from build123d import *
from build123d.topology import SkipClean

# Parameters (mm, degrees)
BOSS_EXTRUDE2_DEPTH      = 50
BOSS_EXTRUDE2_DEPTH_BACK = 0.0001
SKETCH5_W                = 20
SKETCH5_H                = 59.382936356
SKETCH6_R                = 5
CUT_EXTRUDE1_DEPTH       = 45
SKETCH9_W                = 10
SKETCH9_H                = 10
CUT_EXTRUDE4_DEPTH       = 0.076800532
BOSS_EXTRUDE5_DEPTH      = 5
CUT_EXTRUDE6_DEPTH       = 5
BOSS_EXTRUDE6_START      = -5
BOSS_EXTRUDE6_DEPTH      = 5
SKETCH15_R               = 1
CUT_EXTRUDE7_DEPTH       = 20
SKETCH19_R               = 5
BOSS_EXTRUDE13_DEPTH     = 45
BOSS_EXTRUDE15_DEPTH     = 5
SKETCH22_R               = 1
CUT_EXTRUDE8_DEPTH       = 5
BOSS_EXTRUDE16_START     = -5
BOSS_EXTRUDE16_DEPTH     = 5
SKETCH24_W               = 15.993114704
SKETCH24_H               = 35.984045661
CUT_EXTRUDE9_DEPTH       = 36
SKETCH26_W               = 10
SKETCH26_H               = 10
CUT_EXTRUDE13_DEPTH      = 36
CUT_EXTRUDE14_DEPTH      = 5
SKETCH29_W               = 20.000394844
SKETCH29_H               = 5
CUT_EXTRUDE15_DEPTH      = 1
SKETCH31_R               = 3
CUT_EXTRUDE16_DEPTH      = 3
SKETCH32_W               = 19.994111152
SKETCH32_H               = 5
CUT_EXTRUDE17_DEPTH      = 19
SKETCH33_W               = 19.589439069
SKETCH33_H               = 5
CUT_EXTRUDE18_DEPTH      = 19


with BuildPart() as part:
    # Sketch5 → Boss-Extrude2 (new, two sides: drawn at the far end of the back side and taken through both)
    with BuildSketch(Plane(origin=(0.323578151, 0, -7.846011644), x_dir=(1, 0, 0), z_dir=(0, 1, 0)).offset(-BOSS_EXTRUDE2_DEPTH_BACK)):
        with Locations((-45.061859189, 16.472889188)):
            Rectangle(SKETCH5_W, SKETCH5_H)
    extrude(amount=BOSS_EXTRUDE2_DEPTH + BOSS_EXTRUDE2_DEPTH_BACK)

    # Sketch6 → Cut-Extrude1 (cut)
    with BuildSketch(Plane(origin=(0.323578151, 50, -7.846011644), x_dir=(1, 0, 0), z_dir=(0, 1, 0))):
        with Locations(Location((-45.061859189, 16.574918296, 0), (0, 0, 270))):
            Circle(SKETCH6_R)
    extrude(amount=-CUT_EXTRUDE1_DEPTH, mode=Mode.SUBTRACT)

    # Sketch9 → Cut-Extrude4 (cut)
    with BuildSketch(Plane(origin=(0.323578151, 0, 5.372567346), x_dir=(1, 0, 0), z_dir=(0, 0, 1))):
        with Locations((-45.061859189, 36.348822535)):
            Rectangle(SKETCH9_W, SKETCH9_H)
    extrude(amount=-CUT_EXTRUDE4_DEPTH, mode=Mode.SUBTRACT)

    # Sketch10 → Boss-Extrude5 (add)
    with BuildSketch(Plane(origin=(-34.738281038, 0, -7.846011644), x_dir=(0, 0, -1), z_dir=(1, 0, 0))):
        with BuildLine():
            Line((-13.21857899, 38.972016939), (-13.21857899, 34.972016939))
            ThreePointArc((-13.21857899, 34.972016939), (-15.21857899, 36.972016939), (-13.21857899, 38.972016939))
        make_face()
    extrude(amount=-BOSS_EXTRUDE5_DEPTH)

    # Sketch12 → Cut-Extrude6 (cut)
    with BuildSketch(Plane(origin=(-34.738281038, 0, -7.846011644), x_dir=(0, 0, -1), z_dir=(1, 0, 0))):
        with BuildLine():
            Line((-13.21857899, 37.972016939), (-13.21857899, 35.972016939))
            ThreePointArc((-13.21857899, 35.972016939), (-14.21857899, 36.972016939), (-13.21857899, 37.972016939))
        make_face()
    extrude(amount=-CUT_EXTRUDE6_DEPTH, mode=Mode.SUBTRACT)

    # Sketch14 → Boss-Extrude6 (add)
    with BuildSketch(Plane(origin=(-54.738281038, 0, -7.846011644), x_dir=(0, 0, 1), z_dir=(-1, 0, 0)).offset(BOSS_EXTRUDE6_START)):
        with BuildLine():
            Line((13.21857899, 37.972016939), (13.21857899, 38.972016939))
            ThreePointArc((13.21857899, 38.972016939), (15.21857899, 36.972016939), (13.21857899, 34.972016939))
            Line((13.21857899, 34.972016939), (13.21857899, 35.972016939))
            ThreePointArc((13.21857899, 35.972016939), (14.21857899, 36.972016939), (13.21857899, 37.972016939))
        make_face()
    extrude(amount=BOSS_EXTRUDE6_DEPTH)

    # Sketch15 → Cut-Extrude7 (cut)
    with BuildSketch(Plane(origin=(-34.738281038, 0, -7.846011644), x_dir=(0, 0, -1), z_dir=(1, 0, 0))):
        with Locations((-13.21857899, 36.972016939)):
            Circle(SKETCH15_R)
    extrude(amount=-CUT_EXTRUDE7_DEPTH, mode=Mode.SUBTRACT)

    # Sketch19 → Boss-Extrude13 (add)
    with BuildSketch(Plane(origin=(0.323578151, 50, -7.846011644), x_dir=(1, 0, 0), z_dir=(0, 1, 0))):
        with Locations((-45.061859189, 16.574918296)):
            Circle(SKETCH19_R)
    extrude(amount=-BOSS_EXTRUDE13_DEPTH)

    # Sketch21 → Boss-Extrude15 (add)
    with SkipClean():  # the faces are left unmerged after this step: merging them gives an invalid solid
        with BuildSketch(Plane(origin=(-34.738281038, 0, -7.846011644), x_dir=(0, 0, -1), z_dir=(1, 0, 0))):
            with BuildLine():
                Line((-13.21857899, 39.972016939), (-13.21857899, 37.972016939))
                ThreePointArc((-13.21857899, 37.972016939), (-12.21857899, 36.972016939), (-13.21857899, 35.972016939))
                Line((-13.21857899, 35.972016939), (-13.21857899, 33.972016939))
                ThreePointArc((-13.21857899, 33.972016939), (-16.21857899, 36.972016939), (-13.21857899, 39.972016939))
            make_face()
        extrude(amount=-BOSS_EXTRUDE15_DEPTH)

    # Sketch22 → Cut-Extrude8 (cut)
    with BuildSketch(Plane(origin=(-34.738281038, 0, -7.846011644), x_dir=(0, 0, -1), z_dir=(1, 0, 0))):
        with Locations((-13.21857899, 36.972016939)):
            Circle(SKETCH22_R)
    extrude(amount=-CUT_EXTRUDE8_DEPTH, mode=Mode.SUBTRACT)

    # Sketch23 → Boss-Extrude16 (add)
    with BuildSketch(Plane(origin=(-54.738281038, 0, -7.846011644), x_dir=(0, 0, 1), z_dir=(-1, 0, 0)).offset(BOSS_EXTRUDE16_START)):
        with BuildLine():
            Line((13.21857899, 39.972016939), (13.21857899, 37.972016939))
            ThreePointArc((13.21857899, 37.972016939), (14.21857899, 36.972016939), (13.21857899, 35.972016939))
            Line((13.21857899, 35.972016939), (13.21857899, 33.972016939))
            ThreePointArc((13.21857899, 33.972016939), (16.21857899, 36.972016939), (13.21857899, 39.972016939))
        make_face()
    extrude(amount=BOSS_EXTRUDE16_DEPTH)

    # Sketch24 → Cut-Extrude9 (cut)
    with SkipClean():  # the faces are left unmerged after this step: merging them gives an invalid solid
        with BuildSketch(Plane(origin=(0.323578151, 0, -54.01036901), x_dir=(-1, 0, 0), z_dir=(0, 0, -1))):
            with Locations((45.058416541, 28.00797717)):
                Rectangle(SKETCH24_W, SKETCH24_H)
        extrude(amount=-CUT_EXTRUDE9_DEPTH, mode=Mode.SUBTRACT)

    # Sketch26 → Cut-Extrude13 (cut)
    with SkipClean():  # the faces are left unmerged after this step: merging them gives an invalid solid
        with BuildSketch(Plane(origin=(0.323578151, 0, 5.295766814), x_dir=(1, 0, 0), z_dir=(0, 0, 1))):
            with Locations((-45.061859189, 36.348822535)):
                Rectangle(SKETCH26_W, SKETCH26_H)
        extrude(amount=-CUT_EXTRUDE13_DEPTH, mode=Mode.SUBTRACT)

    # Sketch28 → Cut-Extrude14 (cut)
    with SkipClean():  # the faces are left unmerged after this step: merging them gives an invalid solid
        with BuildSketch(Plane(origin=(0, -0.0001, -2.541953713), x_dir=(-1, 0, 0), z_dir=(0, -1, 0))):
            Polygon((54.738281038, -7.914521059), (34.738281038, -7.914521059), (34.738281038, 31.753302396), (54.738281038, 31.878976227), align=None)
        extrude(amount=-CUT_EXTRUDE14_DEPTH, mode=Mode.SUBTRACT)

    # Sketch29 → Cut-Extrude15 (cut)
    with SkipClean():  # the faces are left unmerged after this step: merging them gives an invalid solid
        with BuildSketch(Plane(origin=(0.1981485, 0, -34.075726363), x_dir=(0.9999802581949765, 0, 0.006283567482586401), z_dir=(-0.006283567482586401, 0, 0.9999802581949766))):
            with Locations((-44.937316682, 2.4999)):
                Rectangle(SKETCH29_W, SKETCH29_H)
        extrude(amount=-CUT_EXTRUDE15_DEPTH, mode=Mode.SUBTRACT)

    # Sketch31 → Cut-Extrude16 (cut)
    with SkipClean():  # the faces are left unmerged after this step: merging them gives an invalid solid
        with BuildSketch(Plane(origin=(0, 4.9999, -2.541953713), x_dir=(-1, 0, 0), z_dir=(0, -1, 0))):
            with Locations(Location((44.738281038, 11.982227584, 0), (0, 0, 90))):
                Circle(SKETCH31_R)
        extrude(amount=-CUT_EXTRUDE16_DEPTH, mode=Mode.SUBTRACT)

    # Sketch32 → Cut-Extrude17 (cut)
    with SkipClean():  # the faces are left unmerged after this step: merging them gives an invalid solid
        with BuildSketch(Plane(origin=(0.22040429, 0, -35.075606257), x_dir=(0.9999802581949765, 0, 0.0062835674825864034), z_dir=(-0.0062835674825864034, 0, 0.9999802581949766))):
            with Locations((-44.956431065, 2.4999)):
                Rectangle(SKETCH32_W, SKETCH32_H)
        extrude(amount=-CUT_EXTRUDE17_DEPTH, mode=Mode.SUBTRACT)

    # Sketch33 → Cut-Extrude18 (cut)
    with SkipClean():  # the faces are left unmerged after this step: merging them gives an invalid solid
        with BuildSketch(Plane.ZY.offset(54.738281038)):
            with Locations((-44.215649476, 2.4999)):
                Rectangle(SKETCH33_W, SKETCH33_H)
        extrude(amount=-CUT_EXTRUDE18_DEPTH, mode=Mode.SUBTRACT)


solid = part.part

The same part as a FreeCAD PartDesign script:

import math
import FreeCAD as App
import Part
import Sketcher

V = App.Vector

doc = App.newDocument("Part")
body = doc.addObject("PartDesign::Body", "Body")

sketch1 = body.newObject("Sketcher::SketchObject", "Sketch")
sketch1.AttachmentSupport = (doc.getObject("XZ_Plane"), [""])
sketch1.MapMode = "FlatFace"
sketch1.addGeometry(Part.LineSegment(V(-55, -54, 0), V(-55, 5, 0)), False)
sketch1.addGeometry(Part.LineSegment(V(-55, 5, 0), V(-35, 5, 0)), False)
sketch1.addGeometry(Part.LineSegment(V(-35, 5, 0), V(-35, -54, 0)), False)
sketch1.addGeometry(Part.LineSegment(V(-35, -54, 0), V(-55, -54, 0)), False)
sketch1.addConstraint(Sketcher.Constraint("Coincident", 0, 2, 1, 1))
sketch1.addConstraint(Sketcher.Constraint("Coincident", 1, 2, 2, 1))
sketch1.addConstraint(Sketcher.Constraint("Coincident", 2, 2, 3, 1))
sketch1.addConstraint(Sketcher.Constraint("Coincident", 3, 2, 0, 1))
sketch1.addConstraint(Sketcher.Constraint("Vertical", 0))
sketch1.addConstraint(Sketcher.Constraint("Horizontal", 1))
sketch1.addConstraint(Sketcher.Constraint("Vertical", 2))
sketch1.addConstraint(Sketcher.Constraint("Horizontal", 3))
sketch1.addConstraint(Sketcher.Constraint("DistanceX", 1, 1, 1, 2, 20.0))
sketch1.addConstraint(Sketcher.Constraint("DistanceY", 0, 1, 0, 2, 59.382936))
sketch1.addConstraint(Sketcher.Constraint("DistanceX", 0, 2, -1, 1, 54.738281))
sketch1.addConstraint(Sketcher.Constraint("DistanceY", 2, 2, -1, 1, 54.010369))
pad1 = body.newObject("PartDesign::Pad", "Pad")
pad1.Profile = sketch1
pad1.Type = "TwoLengths"
pad1.Length = 50
pad1.Length2 = 0.0001
pad1.Reversed = True

sketch2 = body.newObject("Sketcher::SketchObject", "Sketch001")
sketch2.AttachmentSupport = (doc.getObject("XZ_Plane"), [""])
sketch2.MapMode = "FlatFace"
sketch2.AttachmentOffset = App.Placement(V(0, 0, -50), App.Rotation())
sketch2.addGeometry(Part.Circle(V(-45, -24, 0), V(0, 0, 1), 5), False)
sketch2.addConstraint(Sketcher.Constraint("Diameter", 0, 10.0))
sketch2.addConstraint(Sketcher.Constraint("DistanceX", 0, 3, -1, 1, 44.738281))
sketch2.addConstraint(Sketcher.Constraint("DistanceY", 0, 3, -1, 1, 24.42093))
pocket1 = body.newObject("PartDesign::Pocket", "Pocket")
pocket1.Profile = sketch2
pocket1.Length = 45
pocket1.Reversed = True

sketch3 = body.newObject("Sketcher::SketchObject", "Sketch002")
sketch3.AttachmentSupport = (doc.getObject("XY_Plane"), [""])
sketch3.MapMode = "FlatFace"
sketch3.AttachmentOffset = App.Placement(V(0, 0, 5.372567), App.Rotation())
sketch3.addGeometry(Part.LineSegment(V(-50, 41, 0), V(-50, 31, 0)), False)
sketch3.addGeometry(Part.LineSegment(V(-50, 31, 0), V(-40, 31, 0)), False)
sketch3.addGeometry(Part.LineSegment(V(-40, 31, 0), V(-40, 41, 0)), False)
sketch3.addGeometry(Part.LineSegment(V(-40, 41, 0), V(-50, 41, 0)), False)
sketch3.addConstraint(Sketcher.Constraint("Coincident", 0, 2, 1, 1))
sketch3.addConstraint(Sketcher.Constraint("Coincident", 1, 2, 2, 1))
sketch3.addConstraint(Sketcher.Constraint("Coincident", 2, 2, 3, 1))
sketch3.addConstraint(Sketcher.Constraint("Coincident", 3, 2, 0, 1))
sketch3.addConstraint(Sketcher.Constraint("Vertical", 0))
sketch3.addConstraint(Sketcher.Constraint("Horizontal", 1))
sketch3.addConstraint(Sketcher.Constraint("Vertical", 2))
sketch3.addConstraint(Sketcher.Constraint("Horizontal", 3))
sketch3.addConstraint(Sketcher.Constraint("Equal", 3, 0))
sketch3.addConstraint(Sketcher.Constraint("DistanceX", 1, 1, 1, 2, 10.0))
sketch3.addConstraint(Sketcher.Constraint("DistanceX", 0, 2, -1, 1, 49.738281))
sketch3.addConstraint(Sketcher.Constraint("DistanceY", -1, 1, 0, 2, 31.348823))
pocket2 = body.newObject("PartDesign::Pocket", "Pocket001")
pocket2.Profile = sketch3
pocket2.Length = 0.076801

sketch4 = body.newObject("Sketcher::SketchObject", "Sketch003")
sketch4.AttachmentSupport = (doc.getObject("YZ_Plane"), [""])
sketch4.MapMode = "FlatFace"
sketch4.AttachmentOffset = App.Placement(V(0, 0, -34.738281), App.Rotation())
sketch4.addGeometry(Part.LineSegment(V(35, 5.4, 0), V(39, 5.4, 0)), False)
sketch4.addGeometry(Part.ArcOfCircle(Part.Circle(V(37, 5.4, 0), V(0, 0, 1), 2), math.radians(0), math.radians(180)), False)
sketch4.addConstraint(Sketcher.Constraint("Coincident", 0, 1, 1, 2))
sketch4.addConstraint(Sketcher.Constraint("Coincident", 1, 1, 0, 2))
sketch4.addConstraint(Sketcher.Constraint("Horizontal", 0))
sketch4.addConstraint(Sketcher.Constraint("Horizontal", 1, 3, 0, 1))
sketch4.addConstraint(Sketcher.Constraint("Radius", 1, 2.0))
sketch4.addConstraint(Sketcher.Constraint("DistanceX", -1, 1, 1, 3, 36.972017))
sketch4.addConstraint(Sketcher.Constraint("DistanceY", -1, 1, 1, 3, 5.372567))
pad2 = body.newObject("PartDesign::Pad", "Pad001")
pad2.Profile = sketch4
pad2.Length = 5
pad2.Reversed = True

sketch5 = body.newObject("Sketcher::SketchObject", "Sketch004")
sketch5.AttachmentSupport = (doc.getObject("YZ_Plane"), [""])
sketch5.MapMode = "FlatFace"
sketch5.AttachmentOffset = App.Placement(V(0, 0, -34.738281), App.Rotation())
sketch5.addGeometry(Part.LineSegment(V(36, 5.4, 0), V(38, 5.4, 0)), False)
sketch5.addGeometry(Part.ArcOfCircle(Part.Circle(V(37, 5.4, 0), V(0, 0, 1), 1), math.radians(0), math.radians(180)), False)
sketch5.addConstraint(Sketcher.Constraint("Coincident", 0, 1, 1, 2))
sketch5.addConstraint(Sketcher.Constraint("Coincident", 1, 1, 0, 2))
sketch5.addConstraint(Sketcher.Constraint("Horizontal", 0))
sketch5.addConstraint(Sketcher.Constraint("Horizontal", 1, 3, 0, 1))
sketch5.addConstraint(Sketcher.Constraint("Radius", 1, 1.0))
sketch5.addConstraint(Sketcher.Constraint("DistanceX", -1, 1, 1, 3, 36.972017))
sketch5.addConstraint(Sketcher.Constraint("DistanceY", -1, 1, 1, 3, 5.372567))
pocket3 = body.newObject("PartDesign::Pocket", "Pocket002")
pocket3.Profile = sketch5
pocket3.Length = 5

sketch6 = body.newObject("Sketcher::SketchObject", "Sketch005")
sketch6.AttachmentSupport = (doc.getObject("YZ_Plane"), [""])
sketch6.MapMode = "FlatFace"
sketch6.AttachmentOffset = App.Placement(V(0, 0, -49.738281), App.Rotation())
sketch6.addGeometry(Part.LineSegment(V(39, 5.4, 0), V(38, 5.4, 0)), False)
sketch6.addGeometry(Part.ArcOfCircle(Part.Circle(V(37, 5.4, 0), V(0, 0, 1), 1), math.radians(0), math.radians(180)), False)
sketch6.addGeometry(Part.LineSegment(V(36, 5.4, 0), V(35, 5.4, 0)), False)
sketch6.addGeometry(Part.ArcOfCircle(Part.Circle(V(37, 5.4, 0), V(0, 0, 1), 2), math.radians(0), math.radians(180)), False)
sketch6.addConstraint(Sketcher.Constraint("Coincident", 0, 2, 1, 1))
sketch6.addConstraint(Sketcher.Constraint("Coincident", 1, 2, 2, 1))
sketch6.addConstraint(Sketcher.Constraint("Coincident", 2, 2, 3, 2))
sketch6.addConstraint(Sketcher.Constraint("Coincident", 3, 1, 0, 1))
sketch6.addConstraint(Sketcher.Constraint("Horizontal", 0))
sketch6.addConstraint(Sketcher.Constraint("Horizontal", 2))
sketch6.addConstraint(Sketcher.Constraint("Coincident", 3, 3, 1, 3))
sketch6.addConstraint(Sketcher.Constraint("Horizontal", 3, 3, 0, 2))
sketch6.addConstraint(Sketcher.Constraint("Horizontal", 0, 2, 1, 2))
sketch6.addConstraint(Sketcher.Constraint("Radius", 1, 1.0))
sketch6.addConstraint(Sketcher.Constraint("Radius", 3, 2.0))
sketch6.addConstraint(Sketcher.Constraint("DistanceX", -1, 1, 1, 3, 36.972017))
sketch6.addConstraint(Sketcher.Constraint("DistanceY", -1, 1, 1, 3, 5.372567))
pad3 = body.newObject("PartDesign::Pad", "Pad002")
pad3.Profile = sketch6
pad3.Length = 5
pad3.Reversed = True

sketch7 = body.newObject("Sketcher::SketchObject", "Sketch006")
sketch7.AttachmentSupport = (doc.getObject("YZ_Plane"), [""])
sketch7.MapMode = "FlatFace"
sketch7.AttachmentOffset = App.Placement(V(0, 0, -34.738281), App.Rotation())
sketch7.addGeometry(Part.Circle(V(37, 5.4, 0), V(0, 0, 1), 1), False)
sketch7.addConstraint(Sketcher.Constraint("Diameter", 0, 2.0))
sketch7.addConstraint(Sketcher.Constraint("DistanceX", -1, 1, 0, 3, 36.972017))
sketch7.addConstraint(Sketcher.Constraint("DistanceY", -1, 1, 0, 3, 5.372567))
pocket4 = body.newObject("PartDesign::Pocket", "Pocket003")
pocket4.Profile = sketch7
pocket4.Length = 20

sketch8 = body.newObject("Sketcher::SketchObject", "Sketch007")
sketch8.AttachmentSupport = (doc.getObject("XZ_Plane"), [""])
sketch8.MapMode = "FlatFace"
sketch8.AttachmentOffset = App.Placement(V(0, 0, -50), App.Rotation())
sketch8.addGeometry(Part.Circle(V(-45, -24, 0), V(0, 0, 1), 5), False)
sketch8.addConstraint(Sketcher.Constraint("Diameter", 0, 10.0))
sketch8.addConstraint(Sketcher.Constraint("DistanceX", 0, 3, -1, 1, 44.738281))
sketch8.addConstraint(Sketcher.Constraint("DistanceY", 0, 3, -1, 1, 24.42093))
pad4 = body.newObject("PartDesign::Pad", "Pad003")
pad4.Profile = sketch8
pad4.Length = 45

sketch9 = body.newObject("Sketcher::SketchObject", "Sketch008")
sketch9.AttachmentSupport = (doc.getObject("YZ_Plane"), [""])
sketch9.MapMode = "FlatFace"
sketch9.AttachmentOffset = App.Placement(V(0, 0, -34.738281), App.Rotation())
sketch9.addGeometry(Part.LineSegment(V(38, 5.4, 0), V(40, 5.4, 0)), False)
sketch9.addGeometry(Part.ArcOfCircle(Part.Circle(V(37, 5.4, 0), V(0, 0, 1), 3), math.radians(0), math.radians(180)), False)
sketch9.addGeometry(Part.LineSegment(V(34, 5.4, 0), V(36, 5.4, 0)), False)
sketch9.addGeometry(Part.ArcOfCircle(Part.Circle(V(37, 5.4, 0), V(0, 0, 1), 1), math.radians(180), math.radians(360)), False)
sketch9.addConstraint(Sketcher.Constraint("Coincident", 0, 2, 1, 1))
sketch9.addConstraint(Sketcher.Constraint("Coincident", 1, 2, 2, 1))
sketch9.addConstraint(Sketcher.Constraint("Coincident", 2, 2, 3, 1))
sketch9.addConstraint(Sketcher.Constraint("Coincident", 3, 2, 0, 1))
sketch9.addConstraint(Sketcher.Constraint("Horizontal", 0))
sketch9.addConstraint(Sketcher.Constraint("Horizontal", 2))
sketch9.addConstraint(Sketcher.Constraint("Coincident", 3, 3, 1, 3))
sketch9.addConstraint(Sketcher.Constraint("Horizontal", 3, 3, 0, 2))
sketch9.addConstraint(Sketcher.Constraint("Horizontal", 0, 2, 1, 2))
sketch9.addConstraint(Sketcher.Constraint("Radius", 1, 3.0))
sketch9.addConstraint(Sketcher.Constraint("Radius", 3, 1.0))
sketch9.addConstraint(Sketcher.Constraint("DistanceX", -1, 1, 1, 3, 36.972017))
sketch9.addConstraint(Sketcher.Constraint("DistanceY", -1, 1, 1, 3, 5.372567))
pad5 = body.newObject("PartDesign::Pad", "Pad004")
pad5.Profile = sketch9
pad5.Length = 5
pad5.Reversed = True

sketch10 = body.newObject("Sketcher::SketchObject", "Sketch009")
sketch10.AttachmentSupport = (doc.getObject("YZ_Plane"), [""])
sketch10.MapMode = "FlatFace"
sketch10.AttachmentOffset = App.Placement(V(0, 0, -34.738281), App.Rotation())
sketch10.addGeometry(Part.Circle(V(37, 5.4, 0), V(0, 0, 1), 1), False)
sketch10.addConstraint(Sketcher.Constraint("Diameter", 0, 2.0))
sketch10.addConstraint(Sketcher.Constraint("DistanceX", -1, 1, 0, 3, 36.972017))
sketch10.addConstraint(Sketcher.Constraint("DistanceY", -1, 1, 0, 3, 5.372567))
pocket5 = body.newObject("PartDesign::Pocket", "Pocket004")
pocket5.Profile = sketch10
pocket5.Length = 5

sketch11 = body.newObject("Sketcher::SketchObject", "Sketch010")
sketch11.AttachmentSupport = (doc.getObject("YZ_Plane"), [""])
sketch11.MapMode = "FlatFace"
sketch11.AttachmentOffset = App.Placement(V(0, 0, -49.738281), App.Rotation())
sketch11.addGeometry(Part.LineSegment(V(40, 5.4, 0), V(38, 5.4, 0)), False)
sketch11.addGeometry(Part.ArcOfCircle(Part.Circle(V(37, 5.4, 0), V(0, 0, 1), 1), math.radians(0), math.radians(180)), False)
sketch11.addGeometry(Part.LineSegment(V(36, 5.4, 0), V(34, 5.4, 0)), False)
sketch11.addGeometry(Part.ArcOfCircle(Part.Circle(V(37, 5.4, 0), V(0, 0, 1), 3), math.radians(0), math.radians(180)), False)
sketch11.addConstraint(Sketcher.Constraint("Coincident", 0, 2, 1, 1))
sketch11.addConstraint(Sketcher.Constraint("Coincident", 1, 2, 2, 1))
sketch11.addConstraint(Sketcher.Constraint("Coincident", 2, 2, 3, 2))
sketch11.addConstraint(Sketcher.Constraint("Coincident", 3, 1, 0, 1))
sketch11.addConstraint(Sketcher.Constraint("Horizontal", 0))
sketch11.addConstraint(Sketcher.Constraint("Horizontal", 2))
sketch11.addConstraint(Sketcher.Constraint("Coincident", 3, 3, 1, 3))
sketch11.addConstraint(Sketcher.Constraint("Horizontal", 3, 3, 0, 2))
sketch11.addConstraint(Sketcher.Constraint("Horizontal", 0, 2, 1, 2))
sketch11.addConstraint(Sketcher.Constraint("Radius", 1, 1.0))
sketch11.addConstraint(Sketcher.Constraint("Radius", 3, 3.0))
sketch11.addConstraint(Sketcher.Constraint("DistanceX", -1, 1, 1, 3, 36.972017))
sketch11.addConstraint(Sketcher.Constraint("DistanceY", -1, 1, 1, 3, 5.372567))
pad6 = body.newObject("PartDesign::Pad", "Pad005")
pad6.Profile = sketch11
pad6.Length = 5
pad6.Reversed = True

sketch12 = body.newObject("Sketcher::SketchObject", "Sketch011")
sketch12.AttachmentSupport = (doc.getObject("XY_Plane"), [""])
sketch12.MapMode = "FlatFace"
sketch12.AttachmentOffset = App.Placement(V(0, 0, -54.010369), App.Rotation())
sketch12.addGeometry(Part.LineSegment(V(-37, 46, 0), V(-37, 10, 0)), False)
sketch12.addGeometry(Part.LineSegment(V(-37, 10, 0), V(-53, 10, 0)), False)
sketch12.addGeometry(Part.LineSegment(V(-53, 10, 0), V(-53, 46, 0)), False)
sketch12.addGeometry(Part.LineSegment(V(-53, 46, 0), V(-37, 46, 0)), False)
sketch12.addConstraint(Sketcher.Constraint("Coincident", 0, 2, 1, 1))
sketch12.addConstraint(Sketcher.Constraint("Coincident", 1, 2, 2, 1))
sketch12.addConstraint(Sketcher.Constraint("Coincident", 2, 2, 3, 1))
sketch12.addConstraint(Sketcher.Constraint("Coincident", 3, 2, 0, 1))
sketch12.addConstraint(Sketcher.Constraint("Vertical", 0))
sketch12.addConstraint(Sketcher.Constraint("Horizontal", 1))
sketch12.addConstraint(Sketcher.Constraint("Vertical", 2))
sketch12.addConstraint(Sketcher.Constraint("Horizontal", 3))
sketch12.addConstraint(Sketcher.Constraint("DistanceY", -1, 1, 2, 2, 46.0))
sketch12.addConstraint(Sketcher.Constraint("DistanceX", 1, 2, 1, 1, 15.993115))
sketch12.addConstraint(Sketcher.Constraint("DistanceY", 0, 2, 0, 1, 35.984046))
sketch12.addConstraint(Sketcher.Constraint("DistanceX", 0, 2, -1, 1, 36.738281))
pocket6 = body.newObject("PartDesign::Pocket", "Pocket005")
pocket6.Profile = sketch12
pocket6.Length = 36
pocket6.Reversed = True

sketch13 = body.newObject("Sketcher::SketchObject", "Sketch012")
sketch13.AttachmentSupport = (doc.getObject("XY_Plane"), [""])
sketch13.MapMode = "FlatFace"
sketch13.AttachmentOffset = App.Placement(V(0, 0, 5.295767), App.Rotation())
sketch13.addGeometry(Part.LineSegment(V(-50, 41, 0), V(-50, 31, 0)), False)
sketch13.addGeometry(Part.LineSegment(V(-50, 31, 0), V(-40, 31, 0)), False)
sketch13.addGeometry(Part.LineSegment(V(-40, 31, 0), V(-40, 41, 0)), False)
sketch13.addGeometry(Part.LineSegment(V(-40, 41, 0), V(-50, 41, 0)), False)
sketch13.addConstraint(Sketcher.Constraint("Coincident", 0, 2, 1, 1))
sketch13.addConstraint(Sketcher.Constraint("Coincident", 1, 2, 2, 1))
sketch13.addConstraint(Sketcher.Constraint("Coincident", 2, 2, 3, 1))
sketch13.addConstraint(Sketcher.Constraint("Coincident", 3, 2, 0, 1))
sketch13.addConstraint(Sketcher.Constraint("Vertical", 0))
sketch13.addConstraint(Sketcher.Constraint("Horizontal", 1))
sketch13.addConstraint(Sketcher.Constraint("Vertical", 2))
sketch13.addConstraint(Sketcher.Constraint("Horizontal", 3))
sketch13.addConstraint(Sketcher.Constraint("Equal", 3, 0))
sketch13.addConstraint(Sketcher.Constraint("DistanceX", 1, 1, 1, 2, 10.0))
sketch13.addConstraint(Sketcher.Constraint("DistanceX", 0, 2, -1, 1, 49.738281))
sketch13.addConstraint(Sketcher.Constraint("DistanceY", -1, 1, 0, 2, 31.348823))
pocket7 = body.newObject("PartDesign::Pocket", "Pocket006")
pocket7.Profile = sketch13
pocket7.Length = 36

sketch14 = body.newObject("Sketcher::SketchObject", "Sketch013")
sketch14.AttachmentSupport = (doc.getObject("XZ_Plane"), [""])
sketch14.MapMode = "FlatFace"
sketch14.AttachmentOffset = App.Placement(V(0, 0, 0.0001), App.Rotation())
sketch14.addGeometry(Part.LineSegment(V(-35, 5, 0), V(-55, 5, 0)), False)
sketch14.addGeometry(Part.LineSegment(V(-55, 5, 0), V(-55, -34, 0)), False)
sketch14.addGeometry(Part.LineSegment(V(-55, -34, 0), V(-35, -34, 0)), False)
sketch14.addGeometry(Part.LineSegment(V(-35, -34, 0), V(-35, 5, 0)), False)
sketch14.addConstraint(Sketcher.Constraint("Coincident", 0, 2, 1, 1))
sketch14.addConstraint(Sketcher.Constraint("Coincident", 1, 2, 2, 1))
sketch14.addConstraint(Sketcher.Constraint("Coincident", 2, 2, 3, 1))
sketch14.addConstraint(Sketcher.Constraint("Coincident", 3, 2, 0, 1))
sketch14.addConstraint(Sketcher.Constraint("Horizontal", 0))
sketch14.addConstraint(Sketcher.Constraint("Vertical", 1))
sketch14.addConstraint(Sketcher.Constraint("Vertical", 3))
sketch14.addConstraint(Sketcher.Constraint("DistanceX", 0, 2, 0, 1, 20.0))
sketch14.addConstraint(Sketcher.Constraint("DistanceY", 1, 2, 1, 1, 39.793497))
sketch14.addConstraint(Sketcher.Constraint("DistanceY", 3, 1, 3, 2, 39.667823))
sketch14.addConstraint(Sketcher.Constraint("DistanceX", 0, 2, -1, 1, 54.738281))
sketch14.addConstraint(Sketcher.Constraint("DistanceY", 1, 2, -1, 1, 34.42093))
pocket8 = body.newObject("PartDesign::Pocket", "Pocket007")
pocket8.Profile = sketch14
pocket8.Length = 5

sketch15 = body.newObject("Sketcher::SketchObject", "Sketch014")
sketch15.Placement = App.Placement(V(0.198149, 0, -34.075726), App.Rotation(V(0.999980258, 0, 0.006283567), V(0, 1, 0), V(-0.006283567, 0, 0.999980258), "ZXY"))
sketch15.addGeometry(Part.LineSegment(V(-54.9, 5, 0), V(-54.9, 0, 0)), False)
sketch15.addGeometry(Part.LineSegment(V(-54.9, 0, 0), V(-34.9, 0, 0)), False)
sketch15.addGeometry(Part.LineSegment(V(-34.9, 0, 0), V(-34.9, 5, 0)), False)
sketch15.addGeometry(Part.LineSegment(V(-34.9, 5, 0), V(-54.9, 5, 0)), False)
sketch15.addConstraint(Sketcher.Constraint("Coincident", 0, 2, 1, 1))
sketch15.addConstraint(Sketcher.Constraint("Coincident", 1, 2, 2, 1))
sketch15.addConstraint(Sketcher.Constraint("Coincident", 2, 2, 3, 1))
sketch15.addConstraint(Sketcher.Constraint("Coincident", 3, 2, 0, 1))
sketch15.addConstraint(Sketcher.Constraint("Vertical", 0))
sketch15.addConstraint(Sketcher.Constraint("Horizontal", 1))
sketch15.addConstraint(Sketcher.Constraint("Vertical", 2))
sketch15.addConstraint(Sketcher.Constraint("Horizontal", 3))
sketch15.addConstraint(Sketcher.Constraint("DistanceY", 0, 2, 0, 1, 5.0))
sketch15.addConstraint(Sketcher.Constraint("DistanceY", 0, 2, -1, 1, 0.0001))
sketch15.addConstraint(Sketcher.Constraint("DistanceX", 1, 1, 1, 2, 20.000395))
sketch15.addConstraint(Sketcher.Constraint("DistanceX", 1, 2, -1, 1, 34.937119))
pocket9 = body.newObject("PartDesign::Pocket", "Pocket008")
pocket9.Profile = sketch15
pocket9.Length = 1

sketch16 = body.newObject("Sketcher::SketchObject", "Sketch015")
sketch16.AttachmentSupport = (doc.getObject("XZ_Plane"), [""])
sketch16.MapMode = "FlatFace"
sketch16.AttachmentOffset = App.Placement(V(0, 0, -4.9999), App.Rotation())
sketch16.addGeometry(Part.Circle(V(-44.7, -14.5, 0), V(0, 0, 1), 3), False)
sketch16.addConstraint(Sketcher.Constraint("Diameter", 0, 6.0))
sketch16.addConstraint(Sketcher.Constraint("DistanceX", 0, 3, -1, 1, 44.738281))
sketch16.addConstraint(Sketcher.Constraint("DistanceY", 0, 3, -1, 1, 14.524181))
pocket10 = body.newObject("PartDesign::Pocket", "Pocket009")
pocket10.Profile = sketch16
pocket10.Length = 3

sketch17 = body.newObject("Sketcher::SketchObject", "Sketch016")
sketch17.Placement = App.Placement(V(0.220404, 0, -35.075606), App.Rotation(V(0.999980258, 0, 0.006283567), V(0, 1, 0), V(-0.006283567, 0, 0.999980258), "ZXY"))
sketch17.addGeometry(Part.LineSegment(V(-55, 5, 0), V(-55, 0, 0)), False)
sketch17.addGeometry(Part.LineSegment(V(-55, 0, 0), V(-35, 0, 0)), False)
sketch17.addGeometry(Part.LineSegment(V(-35, 0, 0), V(-35, 5, 0)), False)
sketch17.addGeometry(Part.LineSegment(V(-35, 5, 0), V(-55, 5, 0)), False)
sketch17.addConstraint(Sketcher.Constraint("Coincident", 0, 2, 1, 1))
sketch17.addConstraint(Sketcher.Constraint("Coincident", 1, 2, 2, 1))
sketch17.addConstraint(Sketcher.Constraint("Coincident", 2, 2, 3, 1))
sketch17.addConstraint(Sketcher.Constraint("Coincident", 3, 2, 0, 1))
sketch17.addConstraint(Sketcher.Constraint("Vertical", 0))
sketch17.addConstraint(Sketcher.Constraint("Horizontal", 1))
sketch17.addConstraint(Sketcher.Constraint("Vertical", 2))
sketch17.addConstraint(Sketcher.Constraint("Horizontal", 3))
sketch17.addConstraint(Sketcher.Constraint("DistanceY", 0, 2, 0, 1, 5.0))
sketch17.addConstraint(Sketcher.Constraint("DistanceX", 1, 1, 1, 2, 19.994111))
sketch17.addConstraint(Sketcher.Constraint("DistanceY", 0, 2, -1, 1, 0.0001))
sketch17.addConstraint(Sketcher.Constraint("DistanceX", 0, 2, -1, 1, 54.953487))
pocket11 = body.newObject("PartDesign::Pocket", "Pocket010")
pocket11.Profile = sketch17
pocket11.Length = 19

sketch18 = body.newObject("Sketcher::SketchObject", "Sketch017")
sketch18.AttachmentSupport = (doc.getObject("YZ_Plane"), [""])
sketch18.MapMode = "FlatFace"
sketch18.AttachmentOffset = App.Placement(V(0, 0, -54.738281), App.Rotation())
sketch18.addGeometry(Part.LineSegment(V(5, -54, 0), V(0, -54, 0)), False)
sketch18.addGeometry(Part.LineSegment(V(0, -54, 0), V(0, -34, 0)), False)
sketch18.addGeometry(Part.LineSegment(V(0, -34, 0), V(5, -34, 0)), False)
sketch18.addGeometry(Part.LineSegment(V(5, -34, 0), V(5, -54, 0)), False)
sketch18.addConstraint(Sketcher.Constraint("Coincident", 0, 2, 1, 1))
sketch18.addConstraint(Sketcher.Constraint("Coincident", 1, 2, 2, 1))
sketch18.addConstraint(Sketcher.Constraint("Coincident", 2, 2, 3, 1))
sketch18.addConstraint(Sketcher.Constraint("Coincident", 3, 2, 0, 1))
sketch18.addConstraint(Sketcher.Constraint("Horizontal", 0))
sketch18.addConstraint(Sketcher.Constraint("Vertical", 1))
sketch18.addConstraint(Sketcher.Constraint("Horizontal", 2))
sketch18.addConstraint(Sketcher.Constraint("Vertical", 3))
sketch18.addConstraint(Sketcher.Constraint("DistanceX", 0, 2, 0, 1, 5.0))
sketch18.addConstraint(Sketcher.Constraint("DistanceY", 1, 1, 1, 2, 19.589439))
sketch18.addConstraint(Sketcher.Constraint("DistanceX", 0, 2, -1, 1, 0.0001))
sketch18.addConstraint(Sketcher.Constraint("DistanceY", 0, 2, -1, 1, 54.010369))
pocket12 = body.newObject("PartDesign::Pocket", "Pocket011")
pocket12.Profile = sketch18
pocket12.Length = 19
pocket12.Reversed = True

doc.recompute()
